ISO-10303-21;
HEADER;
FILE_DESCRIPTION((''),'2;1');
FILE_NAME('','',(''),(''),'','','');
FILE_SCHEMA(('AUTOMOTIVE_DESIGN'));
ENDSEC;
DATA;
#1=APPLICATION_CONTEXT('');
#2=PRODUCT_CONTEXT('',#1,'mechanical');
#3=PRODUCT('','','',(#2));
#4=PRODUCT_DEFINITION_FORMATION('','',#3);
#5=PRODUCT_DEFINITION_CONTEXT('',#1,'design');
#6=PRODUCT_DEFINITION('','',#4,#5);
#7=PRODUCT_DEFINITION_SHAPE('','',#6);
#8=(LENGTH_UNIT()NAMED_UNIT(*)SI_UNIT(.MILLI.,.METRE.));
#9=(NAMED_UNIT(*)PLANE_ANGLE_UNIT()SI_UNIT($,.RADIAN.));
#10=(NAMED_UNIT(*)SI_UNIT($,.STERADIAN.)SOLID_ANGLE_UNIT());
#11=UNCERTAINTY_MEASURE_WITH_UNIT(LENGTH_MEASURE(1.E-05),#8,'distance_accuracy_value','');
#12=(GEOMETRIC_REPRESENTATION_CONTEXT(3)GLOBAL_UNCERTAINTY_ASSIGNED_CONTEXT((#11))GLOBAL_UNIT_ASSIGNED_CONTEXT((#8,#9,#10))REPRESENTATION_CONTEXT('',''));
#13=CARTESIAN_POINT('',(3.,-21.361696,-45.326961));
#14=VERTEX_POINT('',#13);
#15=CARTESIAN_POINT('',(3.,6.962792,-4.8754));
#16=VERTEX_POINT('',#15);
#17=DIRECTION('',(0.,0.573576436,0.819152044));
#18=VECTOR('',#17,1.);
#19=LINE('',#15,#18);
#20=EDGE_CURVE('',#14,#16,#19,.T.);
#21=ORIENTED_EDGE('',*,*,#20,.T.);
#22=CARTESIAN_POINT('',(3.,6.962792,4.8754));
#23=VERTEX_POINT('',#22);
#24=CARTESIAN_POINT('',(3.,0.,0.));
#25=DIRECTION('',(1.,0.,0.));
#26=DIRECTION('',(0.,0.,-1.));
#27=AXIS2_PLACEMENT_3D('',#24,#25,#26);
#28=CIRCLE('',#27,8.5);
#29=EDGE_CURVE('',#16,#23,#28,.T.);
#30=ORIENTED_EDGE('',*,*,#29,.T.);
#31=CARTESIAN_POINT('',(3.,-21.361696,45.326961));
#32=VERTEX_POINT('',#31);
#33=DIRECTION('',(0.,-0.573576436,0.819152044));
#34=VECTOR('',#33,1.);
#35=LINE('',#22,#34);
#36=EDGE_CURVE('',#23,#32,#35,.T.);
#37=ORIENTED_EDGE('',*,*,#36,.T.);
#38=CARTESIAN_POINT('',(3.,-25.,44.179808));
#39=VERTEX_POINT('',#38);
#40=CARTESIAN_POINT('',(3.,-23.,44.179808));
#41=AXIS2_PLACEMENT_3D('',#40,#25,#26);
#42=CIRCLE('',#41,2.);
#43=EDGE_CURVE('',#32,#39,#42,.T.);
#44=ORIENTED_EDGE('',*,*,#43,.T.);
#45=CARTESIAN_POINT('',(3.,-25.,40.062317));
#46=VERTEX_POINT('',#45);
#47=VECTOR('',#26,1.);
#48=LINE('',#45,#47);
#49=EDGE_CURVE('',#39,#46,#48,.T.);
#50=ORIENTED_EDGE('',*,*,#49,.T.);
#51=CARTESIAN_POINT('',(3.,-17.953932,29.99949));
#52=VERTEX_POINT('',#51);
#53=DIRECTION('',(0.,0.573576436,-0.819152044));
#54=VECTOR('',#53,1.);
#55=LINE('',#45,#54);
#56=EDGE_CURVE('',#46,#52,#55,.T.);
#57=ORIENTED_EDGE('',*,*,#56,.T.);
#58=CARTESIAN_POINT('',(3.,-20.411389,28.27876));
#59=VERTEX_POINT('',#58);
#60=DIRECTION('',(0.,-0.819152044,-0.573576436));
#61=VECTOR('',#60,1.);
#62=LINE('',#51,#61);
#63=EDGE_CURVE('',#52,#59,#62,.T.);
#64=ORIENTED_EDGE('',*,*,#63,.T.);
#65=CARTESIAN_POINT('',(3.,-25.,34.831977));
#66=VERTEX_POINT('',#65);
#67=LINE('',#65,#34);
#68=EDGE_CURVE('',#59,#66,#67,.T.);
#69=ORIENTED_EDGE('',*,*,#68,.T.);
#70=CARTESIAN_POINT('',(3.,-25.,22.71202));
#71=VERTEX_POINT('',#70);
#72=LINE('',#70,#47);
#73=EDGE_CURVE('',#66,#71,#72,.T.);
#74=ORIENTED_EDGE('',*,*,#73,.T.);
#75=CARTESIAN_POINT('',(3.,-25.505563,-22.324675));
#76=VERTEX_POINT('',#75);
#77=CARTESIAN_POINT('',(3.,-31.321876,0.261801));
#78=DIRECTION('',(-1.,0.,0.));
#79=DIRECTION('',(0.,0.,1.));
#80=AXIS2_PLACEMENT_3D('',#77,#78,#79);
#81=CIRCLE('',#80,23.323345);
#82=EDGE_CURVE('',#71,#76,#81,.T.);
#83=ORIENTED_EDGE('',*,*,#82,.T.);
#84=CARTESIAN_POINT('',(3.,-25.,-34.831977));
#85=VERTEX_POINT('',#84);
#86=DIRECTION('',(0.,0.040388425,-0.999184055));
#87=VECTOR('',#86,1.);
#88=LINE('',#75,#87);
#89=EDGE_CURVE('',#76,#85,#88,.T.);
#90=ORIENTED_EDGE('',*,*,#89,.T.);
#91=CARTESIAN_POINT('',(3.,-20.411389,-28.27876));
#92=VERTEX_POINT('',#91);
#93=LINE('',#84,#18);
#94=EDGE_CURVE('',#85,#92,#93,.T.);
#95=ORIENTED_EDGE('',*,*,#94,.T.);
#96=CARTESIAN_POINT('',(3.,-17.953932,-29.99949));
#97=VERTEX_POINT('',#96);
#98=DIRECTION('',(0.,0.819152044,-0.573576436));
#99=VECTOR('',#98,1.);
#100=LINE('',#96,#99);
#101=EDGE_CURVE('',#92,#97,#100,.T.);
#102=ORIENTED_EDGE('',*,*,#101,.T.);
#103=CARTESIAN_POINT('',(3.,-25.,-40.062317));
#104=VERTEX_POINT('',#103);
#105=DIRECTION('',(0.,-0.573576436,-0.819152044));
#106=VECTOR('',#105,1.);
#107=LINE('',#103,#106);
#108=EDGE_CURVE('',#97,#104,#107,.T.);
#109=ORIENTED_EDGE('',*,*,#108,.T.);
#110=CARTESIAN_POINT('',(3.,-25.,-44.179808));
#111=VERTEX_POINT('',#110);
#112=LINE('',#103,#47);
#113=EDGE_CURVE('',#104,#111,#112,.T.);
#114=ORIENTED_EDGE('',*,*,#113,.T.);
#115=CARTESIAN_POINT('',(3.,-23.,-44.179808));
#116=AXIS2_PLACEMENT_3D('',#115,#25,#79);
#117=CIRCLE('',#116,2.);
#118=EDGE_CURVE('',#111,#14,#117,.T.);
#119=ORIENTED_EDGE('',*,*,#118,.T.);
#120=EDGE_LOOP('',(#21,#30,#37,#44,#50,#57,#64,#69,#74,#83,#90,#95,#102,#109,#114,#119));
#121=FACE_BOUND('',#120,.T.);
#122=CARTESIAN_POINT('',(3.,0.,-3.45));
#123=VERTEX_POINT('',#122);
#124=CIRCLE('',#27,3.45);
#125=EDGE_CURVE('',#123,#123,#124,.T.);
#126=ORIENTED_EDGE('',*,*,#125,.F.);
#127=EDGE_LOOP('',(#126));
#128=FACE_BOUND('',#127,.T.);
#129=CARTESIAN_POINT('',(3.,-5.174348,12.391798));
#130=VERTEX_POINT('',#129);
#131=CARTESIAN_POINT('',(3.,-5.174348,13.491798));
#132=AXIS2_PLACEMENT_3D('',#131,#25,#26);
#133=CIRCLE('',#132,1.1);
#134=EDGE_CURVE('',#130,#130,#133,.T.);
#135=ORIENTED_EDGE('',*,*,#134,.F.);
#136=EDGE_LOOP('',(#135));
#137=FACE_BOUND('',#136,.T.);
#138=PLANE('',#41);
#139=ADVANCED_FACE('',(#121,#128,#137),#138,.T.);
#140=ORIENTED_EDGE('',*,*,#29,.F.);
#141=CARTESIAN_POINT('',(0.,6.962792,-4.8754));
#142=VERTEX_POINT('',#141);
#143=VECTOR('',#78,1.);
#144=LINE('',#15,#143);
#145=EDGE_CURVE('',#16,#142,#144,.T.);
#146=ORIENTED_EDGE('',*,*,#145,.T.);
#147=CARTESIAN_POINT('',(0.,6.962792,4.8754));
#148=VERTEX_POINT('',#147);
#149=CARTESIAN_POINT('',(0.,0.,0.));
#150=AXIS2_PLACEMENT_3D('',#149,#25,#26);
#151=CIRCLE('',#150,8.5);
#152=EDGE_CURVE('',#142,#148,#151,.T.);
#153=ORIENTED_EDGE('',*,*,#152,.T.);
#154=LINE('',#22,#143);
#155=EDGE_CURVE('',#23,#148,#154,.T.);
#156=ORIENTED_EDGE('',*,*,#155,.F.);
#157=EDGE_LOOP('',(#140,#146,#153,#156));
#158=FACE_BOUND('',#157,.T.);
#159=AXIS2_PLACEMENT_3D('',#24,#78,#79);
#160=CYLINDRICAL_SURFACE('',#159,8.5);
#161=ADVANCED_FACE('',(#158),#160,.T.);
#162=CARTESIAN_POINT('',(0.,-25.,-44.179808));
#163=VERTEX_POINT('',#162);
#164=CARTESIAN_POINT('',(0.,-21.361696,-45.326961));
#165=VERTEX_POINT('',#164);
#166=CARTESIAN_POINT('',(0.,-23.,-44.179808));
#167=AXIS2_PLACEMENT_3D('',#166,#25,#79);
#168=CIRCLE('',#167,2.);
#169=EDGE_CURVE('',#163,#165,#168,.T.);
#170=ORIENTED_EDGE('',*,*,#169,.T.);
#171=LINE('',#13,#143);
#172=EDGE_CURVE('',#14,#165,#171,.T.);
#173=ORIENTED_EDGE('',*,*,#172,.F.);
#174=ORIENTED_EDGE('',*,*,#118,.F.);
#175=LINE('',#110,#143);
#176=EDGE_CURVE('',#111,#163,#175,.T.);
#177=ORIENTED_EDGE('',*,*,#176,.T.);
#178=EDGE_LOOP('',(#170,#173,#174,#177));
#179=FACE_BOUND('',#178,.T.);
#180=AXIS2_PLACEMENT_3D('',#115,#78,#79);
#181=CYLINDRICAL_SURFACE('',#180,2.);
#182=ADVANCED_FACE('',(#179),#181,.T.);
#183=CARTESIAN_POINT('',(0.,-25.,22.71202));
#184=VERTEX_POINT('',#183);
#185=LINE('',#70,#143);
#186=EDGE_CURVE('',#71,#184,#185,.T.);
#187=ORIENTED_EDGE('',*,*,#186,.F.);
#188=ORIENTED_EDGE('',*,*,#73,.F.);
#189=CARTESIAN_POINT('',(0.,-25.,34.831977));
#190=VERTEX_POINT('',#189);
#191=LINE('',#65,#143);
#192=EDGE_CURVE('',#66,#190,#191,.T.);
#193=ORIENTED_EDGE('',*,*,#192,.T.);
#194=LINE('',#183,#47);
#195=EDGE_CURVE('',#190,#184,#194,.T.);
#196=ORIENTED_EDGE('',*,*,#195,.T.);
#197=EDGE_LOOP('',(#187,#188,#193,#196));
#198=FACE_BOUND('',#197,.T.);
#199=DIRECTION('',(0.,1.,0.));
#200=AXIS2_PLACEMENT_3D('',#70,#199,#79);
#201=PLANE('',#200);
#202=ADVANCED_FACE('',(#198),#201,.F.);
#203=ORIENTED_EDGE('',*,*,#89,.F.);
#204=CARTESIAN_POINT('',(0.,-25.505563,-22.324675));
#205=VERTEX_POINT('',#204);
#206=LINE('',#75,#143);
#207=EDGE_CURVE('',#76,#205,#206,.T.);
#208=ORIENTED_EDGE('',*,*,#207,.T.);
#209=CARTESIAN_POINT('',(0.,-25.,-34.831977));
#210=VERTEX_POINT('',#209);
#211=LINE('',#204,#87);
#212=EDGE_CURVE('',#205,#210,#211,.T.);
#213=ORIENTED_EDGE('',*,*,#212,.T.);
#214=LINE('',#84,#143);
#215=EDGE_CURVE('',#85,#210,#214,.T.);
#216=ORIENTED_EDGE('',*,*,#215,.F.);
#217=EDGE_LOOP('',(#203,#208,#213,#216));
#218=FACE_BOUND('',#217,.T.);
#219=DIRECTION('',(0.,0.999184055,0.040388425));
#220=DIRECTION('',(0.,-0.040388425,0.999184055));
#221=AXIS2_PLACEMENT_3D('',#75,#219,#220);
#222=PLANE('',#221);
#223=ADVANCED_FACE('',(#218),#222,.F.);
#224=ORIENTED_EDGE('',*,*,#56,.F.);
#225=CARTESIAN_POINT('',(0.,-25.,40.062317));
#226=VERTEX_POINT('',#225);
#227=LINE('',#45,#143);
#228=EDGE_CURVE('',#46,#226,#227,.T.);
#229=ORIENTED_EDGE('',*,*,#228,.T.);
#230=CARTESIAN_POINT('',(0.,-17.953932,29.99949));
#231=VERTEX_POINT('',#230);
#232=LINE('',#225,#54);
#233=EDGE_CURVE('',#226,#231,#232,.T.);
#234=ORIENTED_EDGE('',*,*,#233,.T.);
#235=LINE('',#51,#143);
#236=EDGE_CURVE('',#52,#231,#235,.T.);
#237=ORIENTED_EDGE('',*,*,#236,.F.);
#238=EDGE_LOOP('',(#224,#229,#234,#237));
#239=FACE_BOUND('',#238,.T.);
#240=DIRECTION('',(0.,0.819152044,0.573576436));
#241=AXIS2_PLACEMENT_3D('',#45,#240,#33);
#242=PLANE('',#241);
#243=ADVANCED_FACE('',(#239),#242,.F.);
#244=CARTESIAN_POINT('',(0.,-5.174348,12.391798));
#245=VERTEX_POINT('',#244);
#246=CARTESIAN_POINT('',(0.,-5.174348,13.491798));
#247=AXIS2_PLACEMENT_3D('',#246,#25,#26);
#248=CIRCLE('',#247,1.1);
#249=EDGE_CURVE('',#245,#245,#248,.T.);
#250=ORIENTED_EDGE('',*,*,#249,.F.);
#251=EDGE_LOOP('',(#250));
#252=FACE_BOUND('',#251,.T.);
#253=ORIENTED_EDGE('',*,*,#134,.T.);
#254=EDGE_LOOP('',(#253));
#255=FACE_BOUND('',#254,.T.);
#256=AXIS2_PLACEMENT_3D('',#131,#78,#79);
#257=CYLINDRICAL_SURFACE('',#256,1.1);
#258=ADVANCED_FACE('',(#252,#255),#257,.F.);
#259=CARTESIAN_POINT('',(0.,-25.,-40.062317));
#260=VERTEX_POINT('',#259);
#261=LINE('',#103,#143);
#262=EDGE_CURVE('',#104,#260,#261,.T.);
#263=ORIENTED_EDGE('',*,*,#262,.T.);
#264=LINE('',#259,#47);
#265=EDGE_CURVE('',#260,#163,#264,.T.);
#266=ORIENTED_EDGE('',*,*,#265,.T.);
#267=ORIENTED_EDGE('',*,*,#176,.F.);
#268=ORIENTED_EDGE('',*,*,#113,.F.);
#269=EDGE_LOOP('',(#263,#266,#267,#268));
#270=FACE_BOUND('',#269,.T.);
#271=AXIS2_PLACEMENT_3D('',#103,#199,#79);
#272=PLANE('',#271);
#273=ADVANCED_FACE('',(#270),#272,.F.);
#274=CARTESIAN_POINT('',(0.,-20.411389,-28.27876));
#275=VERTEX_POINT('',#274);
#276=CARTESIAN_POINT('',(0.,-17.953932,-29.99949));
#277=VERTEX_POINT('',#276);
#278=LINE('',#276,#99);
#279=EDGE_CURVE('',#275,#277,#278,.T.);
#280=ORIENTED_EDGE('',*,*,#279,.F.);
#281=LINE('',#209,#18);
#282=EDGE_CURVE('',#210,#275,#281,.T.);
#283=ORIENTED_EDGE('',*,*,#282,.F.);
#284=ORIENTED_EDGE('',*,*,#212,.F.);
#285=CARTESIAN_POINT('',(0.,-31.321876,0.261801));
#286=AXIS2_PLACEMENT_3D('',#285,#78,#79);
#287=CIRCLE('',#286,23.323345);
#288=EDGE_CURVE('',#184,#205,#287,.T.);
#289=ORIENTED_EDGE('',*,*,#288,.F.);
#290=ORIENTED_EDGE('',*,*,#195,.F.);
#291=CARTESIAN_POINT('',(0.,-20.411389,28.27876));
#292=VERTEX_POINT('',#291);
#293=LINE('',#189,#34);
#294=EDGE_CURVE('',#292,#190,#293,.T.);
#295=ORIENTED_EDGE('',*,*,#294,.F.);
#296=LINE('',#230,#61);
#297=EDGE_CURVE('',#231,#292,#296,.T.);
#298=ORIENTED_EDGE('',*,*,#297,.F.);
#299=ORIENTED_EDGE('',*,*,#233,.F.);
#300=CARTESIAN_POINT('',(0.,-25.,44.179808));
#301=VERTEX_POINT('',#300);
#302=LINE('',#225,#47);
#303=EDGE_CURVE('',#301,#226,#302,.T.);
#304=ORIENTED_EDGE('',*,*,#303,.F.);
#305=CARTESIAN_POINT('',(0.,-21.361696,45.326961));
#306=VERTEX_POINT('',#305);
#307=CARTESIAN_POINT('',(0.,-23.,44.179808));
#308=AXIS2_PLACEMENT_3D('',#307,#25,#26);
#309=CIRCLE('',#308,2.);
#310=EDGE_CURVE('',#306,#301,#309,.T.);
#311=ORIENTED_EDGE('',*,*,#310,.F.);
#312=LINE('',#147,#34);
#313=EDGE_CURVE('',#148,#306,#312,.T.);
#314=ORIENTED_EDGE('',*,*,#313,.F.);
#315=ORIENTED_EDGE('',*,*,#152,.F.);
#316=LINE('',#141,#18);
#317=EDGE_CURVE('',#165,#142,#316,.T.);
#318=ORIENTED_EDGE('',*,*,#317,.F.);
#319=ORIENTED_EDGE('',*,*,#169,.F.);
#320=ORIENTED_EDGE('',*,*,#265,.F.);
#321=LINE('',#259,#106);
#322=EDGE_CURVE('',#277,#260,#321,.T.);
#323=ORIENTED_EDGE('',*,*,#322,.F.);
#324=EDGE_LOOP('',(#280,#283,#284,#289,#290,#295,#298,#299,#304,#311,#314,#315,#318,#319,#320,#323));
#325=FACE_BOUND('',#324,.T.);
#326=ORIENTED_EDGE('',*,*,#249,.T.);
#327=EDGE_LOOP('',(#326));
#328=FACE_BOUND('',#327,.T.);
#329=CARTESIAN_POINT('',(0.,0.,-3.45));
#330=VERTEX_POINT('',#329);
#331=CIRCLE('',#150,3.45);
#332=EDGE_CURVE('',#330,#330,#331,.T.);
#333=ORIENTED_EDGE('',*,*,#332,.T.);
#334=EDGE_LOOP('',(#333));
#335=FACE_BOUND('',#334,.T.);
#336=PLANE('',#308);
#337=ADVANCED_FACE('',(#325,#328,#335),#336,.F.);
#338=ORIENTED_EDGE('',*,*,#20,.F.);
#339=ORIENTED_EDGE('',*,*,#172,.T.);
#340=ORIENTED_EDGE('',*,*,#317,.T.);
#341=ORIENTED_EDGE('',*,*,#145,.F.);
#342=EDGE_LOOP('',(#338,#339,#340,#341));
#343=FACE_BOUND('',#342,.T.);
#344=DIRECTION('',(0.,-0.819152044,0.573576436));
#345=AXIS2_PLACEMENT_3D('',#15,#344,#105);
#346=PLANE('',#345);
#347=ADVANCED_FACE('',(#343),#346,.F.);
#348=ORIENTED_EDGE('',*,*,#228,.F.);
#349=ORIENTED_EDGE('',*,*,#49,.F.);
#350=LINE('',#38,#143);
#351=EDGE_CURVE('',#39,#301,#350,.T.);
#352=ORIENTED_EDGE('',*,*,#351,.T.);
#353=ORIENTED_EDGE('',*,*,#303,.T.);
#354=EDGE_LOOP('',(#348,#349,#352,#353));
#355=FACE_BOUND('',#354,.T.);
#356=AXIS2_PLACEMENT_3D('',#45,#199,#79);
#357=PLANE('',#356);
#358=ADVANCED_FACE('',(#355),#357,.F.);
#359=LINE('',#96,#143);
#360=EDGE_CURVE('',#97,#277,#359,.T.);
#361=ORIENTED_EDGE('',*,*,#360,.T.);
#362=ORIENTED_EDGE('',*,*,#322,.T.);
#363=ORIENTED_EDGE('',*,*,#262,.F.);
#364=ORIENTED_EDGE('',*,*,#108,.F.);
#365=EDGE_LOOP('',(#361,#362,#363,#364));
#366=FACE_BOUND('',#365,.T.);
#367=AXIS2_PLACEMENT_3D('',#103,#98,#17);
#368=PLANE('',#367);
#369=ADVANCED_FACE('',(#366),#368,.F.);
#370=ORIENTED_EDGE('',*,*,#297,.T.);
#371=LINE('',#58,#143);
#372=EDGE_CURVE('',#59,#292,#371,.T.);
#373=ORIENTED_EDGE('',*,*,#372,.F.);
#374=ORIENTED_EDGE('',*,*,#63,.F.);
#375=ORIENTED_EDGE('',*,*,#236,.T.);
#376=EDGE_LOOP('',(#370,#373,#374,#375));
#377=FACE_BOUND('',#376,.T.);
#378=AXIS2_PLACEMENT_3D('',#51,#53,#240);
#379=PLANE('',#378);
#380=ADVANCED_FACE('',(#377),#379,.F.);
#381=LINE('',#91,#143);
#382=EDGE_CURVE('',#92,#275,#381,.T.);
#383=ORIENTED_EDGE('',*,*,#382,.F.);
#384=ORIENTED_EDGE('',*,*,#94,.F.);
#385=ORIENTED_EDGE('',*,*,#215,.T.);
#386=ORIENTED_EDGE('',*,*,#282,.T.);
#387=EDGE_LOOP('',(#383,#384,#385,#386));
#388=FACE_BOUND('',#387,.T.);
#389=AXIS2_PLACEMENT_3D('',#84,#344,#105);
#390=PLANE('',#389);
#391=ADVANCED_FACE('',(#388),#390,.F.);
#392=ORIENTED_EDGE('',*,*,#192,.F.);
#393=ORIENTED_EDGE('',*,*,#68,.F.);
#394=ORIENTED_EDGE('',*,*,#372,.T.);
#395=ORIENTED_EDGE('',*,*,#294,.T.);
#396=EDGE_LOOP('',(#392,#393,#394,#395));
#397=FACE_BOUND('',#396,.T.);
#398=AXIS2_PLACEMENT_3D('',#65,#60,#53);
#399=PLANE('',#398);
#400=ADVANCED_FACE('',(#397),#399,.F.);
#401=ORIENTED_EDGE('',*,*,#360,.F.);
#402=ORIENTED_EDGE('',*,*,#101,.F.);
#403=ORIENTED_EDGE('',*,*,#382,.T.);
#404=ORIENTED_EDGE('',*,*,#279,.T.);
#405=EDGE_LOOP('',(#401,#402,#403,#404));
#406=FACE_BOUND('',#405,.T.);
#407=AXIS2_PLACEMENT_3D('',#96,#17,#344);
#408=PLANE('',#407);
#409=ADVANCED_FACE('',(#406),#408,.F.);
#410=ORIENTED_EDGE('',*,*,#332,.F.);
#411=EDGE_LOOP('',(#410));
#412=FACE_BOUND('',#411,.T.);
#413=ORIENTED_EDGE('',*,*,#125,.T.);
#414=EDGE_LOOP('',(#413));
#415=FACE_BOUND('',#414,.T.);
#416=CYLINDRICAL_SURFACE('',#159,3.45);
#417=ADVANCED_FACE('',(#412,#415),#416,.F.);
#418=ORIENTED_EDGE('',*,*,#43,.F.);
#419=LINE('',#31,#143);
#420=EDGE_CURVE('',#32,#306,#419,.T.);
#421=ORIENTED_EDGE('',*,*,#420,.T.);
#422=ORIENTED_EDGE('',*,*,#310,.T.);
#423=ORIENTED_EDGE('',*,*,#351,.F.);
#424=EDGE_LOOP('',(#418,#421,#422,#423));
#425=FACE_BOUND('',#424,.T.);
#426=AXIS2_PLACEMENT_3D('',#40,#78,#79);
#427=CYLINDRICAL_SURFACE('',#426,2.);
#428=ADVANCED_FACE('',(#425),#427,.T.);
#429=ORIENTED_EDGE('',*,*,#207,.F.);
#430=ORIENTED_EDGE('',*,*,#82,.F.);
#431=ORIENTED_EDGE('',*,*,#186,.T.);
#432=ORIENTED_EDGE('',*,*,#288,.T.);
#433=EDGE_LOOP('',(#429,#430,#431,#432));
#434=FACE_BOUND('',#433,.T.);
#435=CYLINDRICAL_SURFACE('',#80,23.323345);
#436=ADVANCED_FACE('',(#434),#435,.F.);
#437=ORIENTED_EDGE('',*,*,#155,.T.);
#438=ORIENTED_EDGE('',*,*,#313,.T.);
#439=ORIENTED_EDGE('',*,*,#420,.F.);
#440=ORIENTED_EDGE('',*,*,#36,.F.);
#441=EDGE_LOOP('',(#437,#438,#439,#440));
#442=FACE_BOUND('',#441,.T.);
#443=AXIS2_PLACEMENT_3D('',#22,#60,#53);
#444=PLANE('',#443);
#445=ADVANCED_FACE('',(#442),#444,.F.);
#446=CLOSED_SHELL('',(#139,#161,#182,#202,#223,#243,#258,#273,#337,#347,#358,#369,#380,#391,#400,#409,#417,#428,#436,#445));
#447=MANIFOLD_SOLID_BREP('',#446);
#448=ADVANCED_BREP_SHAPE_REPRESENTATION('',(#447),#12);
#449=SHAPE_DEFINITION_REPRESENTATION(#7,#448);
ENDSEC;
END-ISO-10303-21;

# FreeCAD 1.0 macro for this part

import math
import FreeCAD as App
import Part
import Sketcher

V = App.Vector
Q = App.Units.Quantity

doc = App.newDocument("Part")
body = doc.addObject("PartDesign::Body", "Body")

# Sketch on YZ plane
sketch1 = body.newObject("Sketcher::SketchObject", "Sketch")
sketch1.AttachmentSupport = (doc.getObject("YZ_Plane"), [""])
sketch1.MapMode = "FlatFace"
sketch1.addGeometry([
    Part.LineSegment(V(6.962792, 4.8754, 0), V(-21.361696, 45.326961, 0)),  # 0
    Part.ArcOfCircle(Part.Circle(V(-23, 44.179808, 0), V(0, 0, 1), 2), math.radians(35), math.radians(180)),  # 1
    Part.LineSegment(V(-25, 44.179808, 0), V(-25, 40.062317, 0)),  # 2
    Part.LineSegment(V(-25, 40.062317, 0), V(-17.953932, 29.99949, 0)),  # 3
    Part.LineSegment(V(-17.953932, 29.99949, 0), V(-20.411389, 28.27876, 0)),  # 4
    Part.LineSegment(V(-20.411389, 28.27876, 0), V(-25, 34.831977, 0)),  # 5
    Part.LineSegment(V(-25, 34.831977, 0), V(-25, 22.71202, 0)),  # 6
    Part.ArcOfCircle(Part.Circle(V(-31.321876, 0.261801, 0), V(0, 0, 1), 23.323345), math.radians(-75.559332), math.radians(74.273031)),  # 7
    Part.LineSegment(V(-25.505563, -22.324675, 0), V(-25, -34.831977, 0)),  # 8
    Part.LineSegment(V(-25, -34.831977, 0), V(-20.411389, -28.27876, 0)),  # 9
    Part.LineSegment(V(-20.411389, -28.27876, 0), V(-17.953932, -29.99949, 0)),  # 10
    Part.LineSegment(V(-17.953932, -29.99949, 0), V(-25, -40.062317, 0)),  # 11
    Part.LineSegment(V(-25, -40.062317, 0), V(-25, -44.179808, 0)),  # 12
    Part.ArcOfCircle(Part.Circle(V(-23, -44.179808, 0), V(0, 0, 1), 2), math.radians(-180), math.radians(-35)),  # 13
    Part.LineSegment(V(-21.361696, -45.326961, 0), V(6.962792, -4.8754, 0)),  # 14
    Part.ArcOfCircle(Part.Circle(V(0, 0, 0), V(0, 0, 1), 8.5), math.radians(-35), math.radians(35)),  # 15
    Part.Circle(V(-5.174348, 13.491798, 0), V(0, 0, 1), 1.1),  # 16
    Part.Circle(V(0, 0, 0), V(0, 0, 1), 3.45),  # 17
], False)
sketch1.addConstraint([
    Sketcher.Constraint("Tangent", 0, 2, 1, 1),
    Sketcher.Constraint("Tangent", 1, 2, 2, 1),
    Sketcher.Constraint("Coincident", 2, 2, 3, 1),
    Sketcher.Constraint("Coincident", 3, 2, 4, 1),
    Sketcher.Constraint("Coincident", 4, 2, 5, 1),
    Sketcher.Constraint("Coincident", 5, 2, 6, 1),
    Sketcher.Constraint("Coincident", 6, 2, 7, 2),
    Sketcher.Constraint("Coincident", 7, 1, 8, 1),
    Sketcher.Constraint("Coincident", 8, 2, 9, 1),
    Sketcher.Constraint("Coincident", 9, 2, 10, 1),
    Sketcher.Constraint("Coincident", 10, 2, 11, 1),
    Sketcher.Constraint("Coincident", 11, 2, 12, 1),
    Sketcher.Constraint("Tangent", 12, 2, 13, 1),
    Sketcher.Constraint("Tangent", 13, 2, 14, 1),
    Sketcher.Constraint("Tangent", 14, 2, 15, 1),
    Sketcher.Constraint("Tangent", 15, 2, 0, 1),
    Sketcher.Constraint("Vertical", 2),
    Sketcher.Constraint("Vertical", 6),
    Sketcher.Constraint("Vertical", 12),
    Sketcher.Constraint("Coincident", 15, 3, -1, 1),
    Sketcher.Constraint("Coincident", 17, 3, -1, 1),
    Sketcher.Constraint("Equal", 1, 13),
    Sketcher.Constraint("Symmetric", 1, 3, 13, 3, -1),
    Sketcher.Constraint("Symmetric", 5, 2, 8, 2, -1),
    Sketcher.Constraint("Symmetric", 4, 2, 9, 2, -1),
    Sketcher.Constraint("Symmetric", 3, 2, 10, 2, -1),
    Sketcher.Constraint("Parallel", 0, 3),
    Sketcher.Constraint("Perpendicular", 3, 4),
    Sketcher.Constraint("Perpendicular", 4, 5),
    Sketcher.Constraint("Perpendicular", 10, 11),
    Sketcher.Constraint("Vertical", 2, 2, 5, 2),
    Sketcher.Constraint("Radius", 1, 2.0),
    Sketcher.Constraint("Diameter", 16, 2.2),
    Sketcher.Constraint("Diameter", 17, 6.9),
    Sketcher.Constraint("Radius", 15, 8.5),
    Sketcher.Constraint("Angle", 0, Q("125 deg")),
    Sketcher.Constraint("Distance", 4, 3.0),
    Sketcher.Constraint("Distance", 5, 8.0),
    Sketcher.Constraint("DistanceX", 1, 3, -1, 1, 23.0),
    Sketcher.Constraint("Radius", 7, 23.323345),
    Sketcher.Constraint("DistanceY", 2, 2, 2, 1, 4.117491),
    Sketcher.Constraint("DistanceY", -1, 1, 7, 3, 0.261801),
    Sketcher.Constraint("DistanceY", -1, 1, 16, 3, 13.491798),
    Sketcher.Constraint("DistanceY", 8, 2, 7, 1, 12.507301),
    Sketcher.Constraint("DistanceY", 6, 2, 6, 1, 12.119957),
    Sketcher.Constraint("DistanceX", 0, 2, 16, 3, 16.187348),
])
pad1 = body.newObject("PartDesign::Pad", "Pad")
pad1.Profile = sketch1
pad1.Length = 3

doc.recompute()
